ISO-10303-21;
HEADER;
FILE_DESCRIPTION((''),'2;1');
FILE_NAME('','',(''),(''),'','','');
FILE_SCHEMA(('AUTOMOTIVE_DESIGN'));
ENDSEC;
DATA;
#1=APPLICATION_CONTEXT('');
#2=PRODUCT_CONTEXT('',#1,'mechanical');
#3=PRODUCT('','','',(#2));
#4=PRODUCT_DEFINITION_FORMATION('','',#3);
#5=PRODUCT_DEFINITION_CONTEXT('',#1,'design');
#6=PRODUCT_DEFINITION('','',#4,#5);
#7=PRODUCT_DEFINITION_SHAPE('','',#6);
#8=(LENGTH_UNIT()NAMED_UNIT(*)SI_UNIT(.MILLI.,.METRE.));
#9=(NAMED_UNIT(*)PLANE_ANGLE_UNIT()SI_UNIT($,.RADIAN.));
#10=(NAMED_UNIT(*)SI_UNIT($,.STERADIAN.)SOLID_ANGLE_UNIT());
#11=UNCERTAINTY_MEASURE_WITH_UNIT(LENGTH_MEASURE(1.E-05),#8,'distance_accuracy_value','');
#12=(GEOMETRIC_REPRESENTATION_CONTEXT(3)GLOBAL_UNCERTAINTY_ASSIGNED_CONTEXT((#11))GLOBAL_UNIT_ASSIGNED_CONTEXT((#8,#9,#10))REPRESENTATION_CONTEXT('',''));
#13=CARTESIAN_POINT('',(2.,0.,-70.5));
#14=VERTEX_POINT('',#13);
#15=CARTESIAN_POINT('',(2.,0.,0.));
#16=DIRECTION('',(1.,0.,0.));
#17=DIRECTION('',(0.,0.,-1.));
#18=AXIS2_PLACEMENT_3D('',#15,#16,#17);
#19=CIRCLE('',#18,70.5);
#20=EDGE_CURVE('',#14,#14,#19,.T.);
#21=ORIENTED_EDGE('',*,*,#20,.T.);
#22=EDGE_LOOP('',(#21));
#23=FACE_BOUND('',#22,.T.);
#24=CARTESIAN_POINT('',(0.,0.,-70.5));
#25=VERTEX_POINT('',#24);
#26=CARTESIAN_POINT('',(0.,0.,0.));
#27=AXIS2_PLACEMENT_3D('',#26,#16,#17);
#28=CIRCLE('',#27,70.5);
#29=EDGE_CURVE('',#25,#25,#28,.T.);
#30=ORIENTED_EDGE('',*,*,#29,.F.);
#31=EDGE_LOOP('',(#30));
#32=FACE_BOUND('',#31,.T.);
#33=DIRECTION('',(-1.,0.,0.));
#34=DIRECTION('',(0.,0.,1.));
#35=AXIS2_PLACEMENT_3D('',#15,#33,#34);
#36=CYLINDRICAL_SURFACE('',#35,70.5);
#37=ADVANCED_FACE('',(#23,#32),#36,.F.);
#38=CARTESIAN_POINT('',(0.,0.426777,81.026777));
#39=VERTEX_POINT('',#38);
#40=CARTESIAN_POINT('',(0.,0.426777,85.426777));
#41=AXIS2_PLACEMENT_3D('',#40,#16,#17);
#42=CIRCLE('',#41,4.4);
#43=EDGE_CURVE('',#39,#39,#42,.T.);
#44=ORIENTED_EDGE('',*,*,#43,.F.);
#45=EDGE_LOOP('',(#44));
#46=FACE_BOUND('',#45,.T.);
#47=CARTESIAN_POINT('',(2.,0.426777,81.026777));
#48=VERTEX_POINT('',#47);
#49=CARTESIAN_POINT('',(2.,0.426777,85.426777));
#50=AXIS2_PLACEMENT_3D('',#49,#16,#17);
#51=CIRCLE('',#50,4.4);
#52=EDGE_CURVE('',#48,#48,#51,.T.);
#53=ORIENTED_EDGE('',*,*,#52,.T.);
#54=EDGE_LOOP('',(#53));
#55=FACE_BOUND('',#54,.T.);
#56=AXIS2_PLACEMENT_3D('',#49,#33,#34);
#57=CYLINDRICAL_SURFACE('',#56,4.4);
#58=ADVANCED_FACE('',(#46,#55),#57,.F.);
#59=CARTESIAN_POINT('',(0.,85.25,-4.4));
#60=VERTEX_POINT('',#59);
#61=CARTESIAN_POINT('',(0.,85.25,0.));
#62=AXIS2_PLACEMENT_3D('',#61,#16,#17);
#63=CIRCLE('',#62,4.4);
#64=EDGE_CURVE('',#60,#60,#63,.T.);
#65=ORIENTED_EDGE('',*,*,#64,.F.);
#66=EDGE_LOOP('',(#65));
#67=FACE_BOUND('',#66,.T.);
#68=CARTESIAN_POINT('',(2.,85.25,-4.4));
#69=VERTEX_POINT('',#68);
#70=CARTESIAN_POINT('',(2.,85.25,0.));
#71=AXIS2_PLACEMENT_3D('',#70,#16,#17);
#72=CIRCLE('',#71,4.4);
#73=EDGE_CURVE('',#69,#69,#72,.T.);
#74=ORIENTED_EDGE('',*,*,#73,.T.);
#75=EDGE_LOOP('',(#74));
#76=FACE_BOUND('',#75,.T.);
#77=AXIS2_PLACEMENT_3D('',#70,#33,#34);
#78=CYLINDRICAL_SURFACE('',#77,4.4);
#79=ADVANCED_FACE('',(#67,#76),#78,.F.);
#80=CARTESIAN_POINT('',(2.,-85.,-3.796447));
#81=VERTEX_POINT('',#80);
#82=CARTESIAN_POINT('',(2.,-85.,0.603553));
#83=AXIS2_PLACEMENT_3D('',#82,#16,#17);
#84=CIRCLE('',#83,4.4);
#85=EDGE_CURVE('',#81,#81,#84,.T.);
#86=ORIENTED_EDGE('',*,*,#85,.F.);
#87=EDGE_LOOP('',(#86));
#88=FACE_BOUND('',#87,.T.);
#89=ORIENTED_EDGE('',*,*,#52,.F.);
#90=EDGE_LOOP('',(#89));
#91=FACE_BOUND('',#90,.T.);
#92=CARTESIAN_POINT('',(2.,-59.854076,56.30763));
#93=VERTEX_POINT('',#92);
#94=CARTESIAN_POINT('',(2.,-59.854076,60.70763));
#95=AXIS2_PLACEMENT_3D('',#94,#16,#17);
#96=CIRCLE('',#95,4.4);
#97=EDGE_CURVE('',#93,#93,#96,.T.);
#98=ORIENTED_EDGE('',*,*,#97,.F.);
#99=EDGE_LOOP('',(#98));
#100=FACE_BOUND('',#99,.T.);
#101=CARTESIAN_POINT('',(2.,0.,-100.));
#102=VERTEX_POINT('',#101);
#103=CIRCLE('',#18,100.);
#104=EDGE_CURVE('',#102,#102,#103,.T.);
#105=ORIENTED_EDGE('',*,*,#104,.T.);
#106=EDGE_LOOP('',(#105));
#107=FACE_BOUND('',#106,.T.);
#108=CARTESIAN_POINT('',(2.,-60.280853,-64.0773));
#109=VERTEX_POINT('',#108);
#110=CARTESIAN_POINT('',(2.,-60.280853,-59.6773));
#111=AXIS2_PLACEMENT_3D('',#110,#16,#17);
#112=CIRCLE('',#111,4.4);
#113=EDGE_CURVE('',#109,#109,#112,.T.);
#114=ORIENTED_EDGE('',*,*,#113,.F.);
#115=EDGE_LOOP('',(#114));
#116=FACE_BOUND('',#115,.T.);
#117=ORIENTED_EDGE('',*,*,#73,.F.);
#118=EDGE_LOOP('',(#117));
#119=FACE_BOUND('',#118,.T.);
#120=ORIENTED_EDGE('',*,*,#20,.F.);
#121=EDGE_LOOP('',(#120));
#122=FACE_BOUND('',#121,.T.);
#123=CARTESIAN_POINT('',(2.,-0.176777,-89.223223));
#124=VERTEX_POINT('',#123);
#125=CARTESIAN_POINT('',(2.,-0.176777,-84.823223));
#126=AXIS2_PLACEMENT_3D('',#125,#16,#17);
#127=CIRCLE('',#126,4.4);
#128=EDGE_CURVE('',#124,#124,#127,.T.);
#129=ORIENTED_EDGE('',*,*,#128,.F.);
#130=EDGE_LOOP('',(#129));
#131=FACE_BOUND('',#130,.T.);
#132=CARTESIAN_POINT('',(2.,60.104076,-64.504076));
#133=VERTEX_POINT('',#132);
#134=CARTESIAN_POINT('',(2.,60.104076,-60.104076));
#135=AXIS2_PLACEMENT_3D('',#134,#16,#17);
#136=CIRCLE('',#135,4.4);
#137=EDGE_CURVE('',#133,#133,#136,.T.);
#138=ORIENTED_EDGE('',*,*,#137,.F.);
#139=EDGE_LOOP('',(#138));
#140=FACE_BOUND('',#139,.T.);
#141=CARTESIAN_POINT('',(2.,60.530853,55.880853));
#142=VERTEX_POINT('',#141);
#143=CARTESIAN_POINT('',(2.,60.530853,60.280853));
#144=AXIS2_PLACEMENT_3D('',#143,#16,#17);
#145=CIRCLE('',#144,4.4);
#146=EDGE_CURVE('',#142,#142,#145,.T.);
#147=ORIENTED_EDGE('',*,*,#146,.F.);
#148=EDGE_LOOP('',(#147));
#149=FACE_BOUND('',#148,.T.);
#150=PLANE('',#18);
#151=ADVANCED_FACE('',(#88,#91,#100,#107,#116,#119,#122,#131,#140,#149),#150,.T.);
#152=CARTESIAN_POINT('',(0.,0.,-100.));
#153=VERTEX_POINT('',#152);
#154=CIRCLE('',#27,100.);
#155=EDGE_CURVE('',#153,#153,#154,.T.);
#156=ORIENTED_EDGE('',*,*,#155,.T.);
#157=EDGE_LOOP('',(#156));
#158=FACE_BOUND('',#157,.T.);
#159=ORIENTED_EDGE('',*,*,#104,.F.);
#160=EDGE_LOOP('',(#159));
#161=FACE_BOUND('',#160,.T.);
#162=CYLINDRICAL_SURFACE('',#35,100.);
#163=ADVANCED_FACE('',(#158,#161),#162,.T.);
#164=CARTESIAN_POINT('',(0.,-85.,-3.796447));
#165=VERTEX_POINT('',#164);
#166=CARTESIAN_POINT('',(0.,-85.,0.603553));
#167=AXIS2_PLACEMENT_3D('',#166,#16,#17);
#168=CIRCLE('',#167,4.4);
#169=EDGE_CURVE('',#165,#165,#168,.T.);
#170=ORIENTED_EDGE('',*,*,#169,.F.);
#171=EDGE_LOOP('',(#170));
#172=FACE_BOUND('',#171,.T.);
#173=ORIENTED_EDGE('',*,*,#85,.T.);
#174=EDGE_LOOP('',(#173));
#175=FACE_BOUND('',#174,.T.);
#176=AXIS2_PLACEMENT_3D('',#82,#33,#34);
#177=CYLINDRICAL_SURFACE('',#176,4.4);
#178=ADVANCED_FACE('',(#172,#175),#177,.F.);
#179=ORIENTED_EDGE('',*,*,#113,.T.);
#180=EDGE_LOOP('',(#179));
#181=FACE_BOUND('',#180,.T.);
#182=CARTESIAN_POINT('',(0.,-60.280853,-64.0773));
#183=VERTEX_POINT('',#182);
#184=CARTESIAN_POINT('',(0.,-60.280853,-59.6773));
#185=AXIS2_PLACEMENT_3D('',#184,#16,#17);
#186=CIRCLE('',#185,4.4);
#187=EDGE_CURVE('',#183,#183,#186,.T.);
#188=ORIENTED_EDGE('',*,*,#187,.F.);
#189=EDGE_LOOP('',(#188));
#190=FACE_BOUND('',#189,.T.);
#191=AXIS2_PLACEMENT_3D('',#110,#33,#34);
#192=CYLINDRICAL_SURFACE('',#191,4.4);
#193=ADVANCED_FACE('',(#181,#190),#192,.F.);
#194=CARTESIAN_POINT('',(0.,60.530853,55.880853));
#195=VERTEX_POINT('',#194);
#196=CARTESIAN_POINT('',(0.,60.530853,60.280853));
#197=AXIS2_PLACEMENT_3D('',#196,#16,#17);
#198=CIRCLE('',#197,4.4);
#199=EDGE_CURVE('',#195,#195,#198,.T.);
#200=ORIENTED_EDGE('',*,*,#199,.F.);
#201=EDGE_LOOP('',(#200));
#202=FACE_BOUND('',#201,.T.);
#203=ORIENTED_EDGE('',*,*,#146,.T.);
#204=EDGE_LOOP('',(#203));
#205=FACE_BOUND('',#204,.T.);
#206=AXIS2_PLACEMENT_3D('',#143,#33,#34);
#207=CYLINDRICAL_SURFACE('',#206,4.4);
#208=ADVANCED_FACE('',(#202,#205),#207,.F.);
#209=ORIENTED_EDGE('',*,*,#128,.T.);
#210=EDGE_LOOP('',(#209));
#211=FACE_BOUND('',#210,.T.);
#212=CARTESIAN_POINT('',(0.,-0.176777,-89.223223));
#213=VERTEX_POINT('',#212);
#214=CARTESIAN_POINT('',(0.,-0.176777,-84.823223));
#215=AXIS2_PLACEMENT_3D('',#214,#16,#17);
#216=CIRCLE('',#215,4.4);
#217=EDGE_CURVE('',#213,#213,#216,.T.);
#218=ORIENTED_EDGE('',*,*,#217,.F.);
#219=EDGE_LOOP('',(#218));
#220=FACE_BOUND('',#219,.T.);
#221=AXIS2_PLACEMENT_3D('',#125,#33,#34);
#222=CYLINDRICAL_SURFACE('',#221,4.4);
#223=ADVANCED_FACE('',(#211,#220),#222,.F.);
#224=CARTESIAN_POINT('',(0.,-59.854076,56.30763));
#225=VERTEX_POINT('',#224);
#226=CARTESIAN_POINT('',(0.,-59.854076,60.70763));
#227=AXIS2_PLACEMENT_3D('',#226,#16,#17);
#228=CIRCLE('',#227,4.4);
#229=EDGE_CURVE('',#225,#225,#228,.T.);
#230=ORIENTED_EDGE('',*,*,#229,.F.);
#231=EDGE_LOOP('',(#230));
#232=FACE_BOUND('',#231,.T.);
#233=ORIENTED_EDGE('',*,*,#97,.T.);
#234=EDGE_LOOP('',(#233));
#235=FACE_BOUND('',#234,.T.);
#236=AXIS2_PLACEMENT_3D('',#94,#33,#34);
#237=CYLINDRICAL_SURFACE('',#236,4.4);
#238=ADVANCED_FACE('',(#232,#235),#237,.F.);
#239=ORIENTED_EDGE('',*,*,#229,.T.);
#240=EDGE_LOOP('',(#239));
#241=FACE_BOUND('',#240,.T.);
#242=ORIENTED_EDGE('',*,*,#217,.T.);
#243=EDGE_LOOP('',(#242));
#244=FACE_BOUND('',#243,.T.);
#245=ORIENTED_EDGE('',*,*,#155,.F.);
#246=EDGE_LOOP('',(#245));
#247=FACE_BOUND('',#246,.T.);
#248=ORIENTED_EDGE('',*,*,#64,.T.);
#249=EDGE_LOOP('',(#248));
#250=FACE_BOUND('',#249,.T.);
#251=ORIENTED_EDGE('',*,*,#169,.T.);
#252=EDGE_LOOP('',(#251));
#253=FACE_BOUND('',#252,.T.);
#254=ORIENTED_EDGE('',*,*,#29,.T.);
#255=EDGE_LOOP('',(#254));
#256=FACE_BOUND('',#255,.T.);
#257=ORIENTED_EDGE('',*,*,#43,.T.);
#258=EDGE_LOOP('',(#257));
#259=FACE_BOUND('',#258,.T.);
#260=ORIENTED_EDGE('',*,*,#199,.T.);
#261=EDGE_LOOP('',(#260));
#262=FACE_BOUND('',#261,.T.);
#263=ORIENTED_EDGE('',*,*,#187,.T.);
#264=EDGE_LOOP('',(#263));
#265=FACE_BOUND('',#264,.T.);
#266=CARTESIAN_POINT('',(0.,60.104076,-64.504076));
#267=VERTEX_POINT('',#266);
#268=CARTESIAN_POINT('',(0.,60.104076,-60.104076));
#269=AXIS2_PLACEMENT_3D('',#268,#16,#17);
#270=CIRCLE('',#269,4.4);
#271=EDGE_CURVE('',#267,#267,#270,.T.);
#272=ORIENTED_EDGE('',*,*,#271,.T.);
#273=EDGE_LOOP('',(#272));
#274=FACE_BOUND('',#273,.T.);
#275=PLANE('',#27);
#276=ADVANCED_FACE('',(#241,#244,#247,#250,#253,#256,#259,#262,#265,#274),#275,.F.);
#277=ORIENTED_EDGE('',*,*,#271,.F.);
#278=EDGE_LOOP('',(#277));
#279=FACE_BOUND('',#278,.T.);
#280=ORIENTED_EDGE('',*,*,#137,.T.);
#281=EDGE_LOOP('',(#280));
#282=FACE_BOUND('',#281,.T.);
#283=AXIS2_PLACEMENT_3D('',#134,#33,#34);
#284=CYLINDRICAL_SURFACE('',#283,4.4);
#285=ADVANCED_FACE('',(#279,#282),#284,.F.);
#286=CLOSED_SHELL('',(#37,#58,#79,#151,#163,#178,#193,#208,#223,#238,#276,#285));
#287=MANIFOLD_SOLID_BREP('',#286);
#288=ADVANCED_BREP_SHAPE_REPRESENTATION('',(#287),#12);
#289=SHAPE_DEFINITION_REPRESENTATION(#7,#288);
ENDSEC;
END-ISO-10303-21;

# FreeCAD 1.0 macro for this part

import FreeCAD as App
import Part
import Sketcher

V = App.Vector
Q = App.Units.Quantity

doc = App.newDocument("Part")
body = doc.addObject("PartDesign::Body", "Body")

# Sketch on YZ plane
sketch1 = body.newObject("Sketcher::SketchObject", "Sketch")
sketch1.AttachmentSupport = (doc.getObject("YZ_Plane"), [""])
sketch1.MapMode = "FlatFace"
sketch1.addGeometry([
    Part.Circle(V(0, 0, 0), V(0, 0, 1), 100),  # 0
    Part.Circle(V(-59.9, 60.7, 0), V(0, 0, 1), 4.4),  # 1
    Part.Circle(V(-85, 0.6, 0), V(0, 0, 1), 4.4),  # 2
    Part.Circle(V(-60.3, -59.7, 0), V(0, 0, 1), 4.4),  # 3
    Part.Circle(V(0, 0, 0), V(0, 0, 1), 70.5),  # 4
    Part.Circle(V(-0.2, -84.8, 0), V(0, 0, 1), 4.4),  # 5
    Part.Circle(V(0.4, 85.4, 0), V(0, 0, 1), 4.4),  # 6
    Part.Circle(V(60.5, 60.3, 0), V(0, 0, 1), 4.4),  # 7
    Part.Circle(V(85.2, 0, 0), V(0, 0, 1), 4.4),  # 8
    Part.Circle(V(60.1, -60.1, 0), V(0, 0, 1), 4.4),  # 9
], False)
sketch1.addConstraint([
    Sketcher.Constraint("Coincident", 0, 3, -1, 1),
    Sketcher.Constraint("Coincident", 4, 3, -1, 1),
    Sketcher.Constraint("Equal", 1, 2),
    Sketcher.Constraint("Equal", 2, 3),
    Sketcher.Constraint("Equal", 3, 5),
    Sketcher.Constraint("Equal", 5, 6),
    Sketcher.Constraint("Equal", 6, 7),
    Sketcher.Constraint("Equal", 7, 8),
    Sketcher.Constraint("Equal", 8, 9),
    Sketcher.Constraint("PointOnObject", 8, 3, -1),
    Sketcher.Constraint("Diameter", 0, Q("200 mm")),
    Sketcher.Constraint("Diameter", 4, Q("141 mm")),
    Sketcher.Constraint("Diameter", 1, Q("8.8 mm")),
    Sketcher.Constraint("DistanceX", 2, 3, -1, 1, Q("85 mm")),
    Sketcher.Constraint("DistanceX", -1, 1, 8, 3, Q("85.25 mm")),
    Sketcher.Constraint("DistanceY", 3, 3, -1, 1, Q("59.6773 mm")),
    Sketcher.Constraint("DistanceX", 1, 3, 5, 3, Q("59.6773 mm")),
    Sketcher.Constraint("DistanceY", 2, 3, 7, 3, Q("59.6773 mm")),
    Sketcher.Constraint("DistanceY", -1, 1, 1, 3, Q("60.70763 mm")),
    Sketcher.Constraint("DistanceX", 3, 3, 6, 3, Q("60.70763 mm")),
    Sketcher.Constraint("DistanceX", 1, 3, 7, 3, Q("120.384929 mm")),
    Sketcher.Constraint("DistanceX", 3, 3, 9, 3, Q("120.384929 mm")),
    Sketcher.Constraint("DistanceX", 1, 3, -1, 1, Q("59.854076 mm")),
    Sketcher.Constraint("DistanceY", -1, 1, 2, 3, Q("0.603553 mm")),
    Sketcher.Constraint("DistanceX", 3, 3, -1, 1, Q("60.280853 mm")),
    Sketcher.Constraint("DistanceY", 5, 3, -1, 1, Q("84.823223 mm")),
    Sketcher.Constraint("DistanceY", -1, 1, 6, 3, Q("85.426777 mm")),
    Sketcher.Constraint("DistanceY", 9, 3, -1, 1, Q("60.104076 mm")),
])
pad1 = body.newObject("PartDesign::Pad", "Pad")
pad1.Profile = sketch1
pad1.Length = 2

doc.recompute()
